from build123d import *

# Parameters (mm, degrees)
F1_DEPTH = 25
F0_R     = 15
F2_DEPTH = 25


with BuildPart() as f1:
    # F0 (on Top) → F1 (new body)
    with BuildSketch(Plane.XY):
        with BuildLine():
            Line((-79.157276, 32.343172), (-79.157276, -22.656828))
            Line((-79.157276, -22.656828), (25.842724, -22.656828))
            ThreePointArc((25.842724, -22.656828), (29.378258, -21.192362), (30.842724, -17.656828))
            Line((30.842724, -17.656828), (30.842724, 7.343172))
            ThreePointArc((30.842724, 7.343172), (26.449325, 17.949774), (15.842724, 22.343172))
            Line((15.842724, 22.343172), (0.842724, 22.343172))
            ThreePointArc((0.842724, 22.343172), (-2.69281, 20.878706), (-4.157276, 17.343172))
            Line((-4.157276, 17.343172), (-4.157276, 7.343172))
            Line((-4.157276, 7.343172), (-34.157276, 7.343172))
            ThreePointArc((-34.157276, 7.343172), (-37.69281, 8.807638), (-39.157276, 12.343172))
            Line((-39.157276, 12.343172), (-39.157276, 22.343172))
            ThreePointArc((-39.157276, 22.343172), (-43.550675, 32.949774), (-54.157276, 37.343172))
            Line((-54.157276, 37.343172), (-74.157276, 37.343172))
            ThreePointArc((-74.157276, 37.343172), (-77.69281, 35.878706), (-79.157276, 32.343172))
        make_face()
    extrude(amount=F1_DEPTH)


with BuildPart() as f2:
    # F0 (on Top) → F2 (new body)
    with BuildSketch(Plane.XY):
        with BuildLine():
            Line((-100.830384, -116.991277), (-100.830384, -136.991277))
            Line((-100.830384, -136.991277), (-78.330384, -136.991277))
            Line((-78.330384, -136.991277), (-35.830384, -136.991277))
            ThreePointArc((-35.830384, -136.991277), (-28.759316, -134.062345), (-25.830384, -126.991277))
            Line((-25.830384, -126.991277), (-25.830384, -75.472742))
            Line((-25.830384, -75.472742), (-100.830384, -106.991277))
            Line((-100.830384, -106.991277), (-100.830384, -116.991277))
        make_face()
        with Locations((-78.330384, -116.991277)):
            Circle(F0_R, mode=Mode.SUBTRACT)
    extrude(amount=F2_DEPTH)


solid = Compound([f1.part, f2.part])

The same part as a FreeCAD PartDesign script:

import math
import FreeCAD as App
import Part
import Sketcher

V = App.Vector
Q = App.Units.Quantity

doc = App.newDocument("Part")
body = doc.addObject("PartDesign::Body", "Body")

# Sketch on XY plane
sketch1 = body.newObject("Sketcher::SketchObject", "Sketch")
sketch1.AttachmentSupport = (doc.getObject("XY_Plane"), [""])
sketch1.MapMode = "FlatFace"
sketch1.addGeometry(Part.LineSegment(V(-79.2, 32.3, 0), V(-79.2, -22.7, 0)), False)
sketch1.addGeometry(Part.LineSegment(V(-79.2, -22.7, 0), V(25.8, -22.7, 0)), False)
sketch1.addGeometry(Part.ArcOfCircle(Part.Circle(V(25.8, -17.7, 0), V(0, 0, 1), 5), math.radians(-90), math.radians(0)), False)
sketch1.addGeometry(Part.LineSegment(V(30.8, -17.7, 0), V(30.8, 7.3, 0)), False)
sketch1.addGeometry(Part.ArcOfCircle(Part.Circle(V(15.8, 7.3, 0), V(0, 0, 1), 15), math.radians(0), math.radians(90)), False)
sketch1.addGeometry(Part.LineSegment(V(15.8, 22.3, 0), V(0.8, 22.3, 0)), False)
sketch1.addGeometry(Part.ArcOfCircle(Part.Circle(V(0.8, 17.3, 0), V(0, 0, 1), 5), math.radians(90), math.radians(180)), False)
sketch1.addGeometry(Part.LineSegment(V(-4.2, 17.3, 0), V(-4.2, 7.3, 0)), False)
sketch1.addGeometry(Part.LineSegment(V(-4.2, 7.3, 0), V(-34.2, 7.3, 0)), False)
sketch1.addGeometry(Part.ArcOfCircle(Part.Circle(V(-34.2, 12.3, 0), V(0, 0, 1), 5), math.radians(180), math.radians(270)), False)
sketch1.addGeometry(Part.LineSegment(V(-39.2, 12.3, 0), V(-39.2, 22.3, 0)), False)
sketch1.addGeometry(Part.ArcOfCircle(Part.Circle(V(-54.2, 22.3, 0), V(0, 0, 1), 15), math.radians(0), math.radians(90)), False)
sketch1.addGeometry(Part.LineSegment(V(-54.2, 37.3, 0), V(-74.2, 37.3, 0)), False)
sketch1.addGeometry(Part.ArcOfCircle(Part.Circle(V(-74.2, 32.3, 0), V(0, 0, 1), 5), math.radians(90), math.radians(180)), False)
sketch1.addConstraint(Sketcher.Constraint("Coincident", 0, 2, 1, 1))
sketch1.addConstraint(Sketcher.Constraint("Tangent", 1, 2, 2, 1))
sketch1.addConstraint(Sketcher.Constraint("Tangent", 2, 2, 3, 1))
sketch1.addConstraint(Sketcher.Constraint("Tangent", 3, 2, 4, 1))
sketch1.addConstraint(Sketcher.Constraint("Tangent", 4, 2, 5, 1))
sketch1.addConstraint(Sketcher.Constraint("Tangent", 5, 2, 6, 1))
sketch1.addConstraint(Sketcher.Constraint("Tangent", 6, 2, 7, 1))
sketch1.addConstraint(Sketcher.Constraint("Coincident", 7, 2, 8, 1))
sketch1.addConstraint(Sketcher.Constraint("Tangent", 8, 2, 9, 2))
sketch1.addConstraint(Sketcher.Constraint("Tangent", 9, 1, 10, 1))
sketch1.addConstraint(Sketcher.Constraint("Tangent", 10, 2, 11, 1))
sketch1.addConstraint(Sketcher.Constraint("Tangent", 11, 2, 12, 1))
sketch1.addConstraint(Sketcher.Constraint("Tangent", 12, 2, 13, 1))
sketch1.addConstraint(Sketcher.Constraint("Tangent", 13, 2, 0, 1))
sketch1.addConstraint(Sketcher.Constraint("Vertical", 0))
sketch1.addConstraint(Sketcher.Constraint("Horizontal", 1))
sketch1.addConstraint(Sketcher.Constraint("Vertical", 3))
sketch1.addConstraint(Sketcher.Constraint("Horizontal", 5))
sketch1.addConstraint(Sketcher.Constraint("Vertical", 7))
sketch1.addConstraint(Sketcher.Constraint("Horizontal", 8))
sketch1.addConstraint(Sketcher.Constraint("Vertical", 10))
sketch1.addConstraint(Sketcher.Constraint("Horizontal", 12))
sketch1.addConstraint(Sketcher.Constraint("Equal", 2, 6))
sketch1.addConstraint(Sketcher.Constraint("Equal", 6, 9))
sketch1.addConstraint(Sketcher.Constraint("Equal", 4, 11))
sketch1.addConstraint(Sketcher.Constraint("Equal", 9, 13))
sketch1.addConstraint(Sketcher.Constraint("Horizontal", 11, 3, 4, 2))
sketch1.addConstraint(Sketcher.Constraint("Horizontal", 3, 2, 7, 2))
sketch1.addConstraint(Sketcher.Constraint("Radius", 2, Q("5 mm")))
sketch1.addConstraint(Sketcher.Constraint("Radius", 4, Q("15.000001 mm")))
sketch1.addConstraint(Sketcher.Constraint("DistanceX", 1, 1, 1, 2, Q("105 mm")))
sketch1.addConstraint(Sketcher.Constraint("DistanceX", 5, 2, 5, 1, Q("15 mm")))
sketch1.addConstraint(Sketcher.Constraint("DistanceX", 8, 2, 8, 1, Q("30 mm")))
sketch1.addConstraint(Sketcher.Constraint("DistanceY", 0, 2, 0, 1, Q("55 mm")))
sketch1.addConstraint(Sketcher.Constraint("DistanceY", 2, 3, -1, 1, Q("17.656828 mm")))
sketch1.addConstraint(Sketcher.Constraint("DistanceX", -1, 1, 2, 3, Q("25.842724 mm")))
pad1 = body.newObject("PartDesign::Pad", "Pad")
pad1.Profile = sketch1
pad1.Length = 25
body2 = doc.addObject("PartDesign::Body", "Body001")

# Sketch on XY plane
sketch2 = body2.newObject("Sketcher::SketchObject", "Sketch001")
sketch2.AttachmentSupport = (doc.getObject("XY_Plane001"), [""])
sketch2.MapMode = "FlatFace"
sketch2.addGeometry(Part.LineSegment(V(-101, -137, 0), V(-36, -137, 0)), False)
sketch2.addGeometry(Part.ArcOfCircle(Part.Circle(V(-36, -127, 0), V(0, 0, 1), 10), math.radians(-90), math.radians(0)), False)
sketch2.addGeometry(Part.LineSegment(V(-26, -127, 0), V(-26, -75, 0)), False)
sketch2.addGeometry(Part.LineSegment(V(-26, -75, 0), V(-101, -107, 0)), False)
sketch2.addGeometry(Part.LineSegment(V(-101, -107, 0), V(-101, -137, 0)), False)
sketch2.addGeometry(Part.Circle(V(-78, -117, 0), V(0, 0, 1), 15), False)
sketch2.addConstraint(Sketcher.Constraint("Tangent", 0, 2, 1, 1))
sketch2.addConstraint(Sketcher.Constraint("Tangent", 1, 2, 2, 1))
sketch2.addConstraint(Sketcher.Constraint("Coincident", 2, 2, 3, 1))
sketch2.addConstraint(Sketcher.Constraint("Coincident", 3, 2, 4, 1))
sketch2.addConstraint(Sketcher.Constraint("Coincident", 4, 2, 0, 1))
sketch2.addConstraint(Sketcher.Constraint("Horizontal", 0))
sketch2.addConstraint(Sketcher.Constraint("Vertical", 2))
sketch2.addConstraint(Sketcher.Constraint("Vertical", 4))
sketch2.addConstraint(Sketcher.Constraint("Diameter", 5, Q("30 mm")))
sketch2.addConstraint(Sketcher.Constraint("Radius", 1, Q("9.999999 mm")))
sketch2.addConstraint(Sketcher.Constraint("DistanceX", 0, 1, 0, 2, Q("65 mm")))
sketch2.addConstraint(Sketcher.Constraint("DistanceY", 4, 2, 4, 1, Q("30 mm")))
sketch2.addConstraint(Sketcher.Constraint("DistanceY", 1, 3, 5, 3, Q("10.000001 mm")))
sketch2.addConstraint(Sketcher.Constraint("DistanceX", 5, 3, 1, 3, Q("42.500001 mm")))
sketch2.addConstraint(Sketcher.Constraint("Distance", 3, Q("81.35366 mm")))
sketch2.addConstraint(Sketcher.Constraint("DistanceY", 2, 2, -1, 1, Q("75.472742 mm")))
sketch2.addConstraint(Sketcher.Constraint("DistanceX", 1, 3, -1, 1, Q("35.830383 mm")))
pad2 = body2.newObject("PartDesign::Pad", "Pad001")
pad2.Profile = sketch2
pad2.Length = 25

doc.recompute()
